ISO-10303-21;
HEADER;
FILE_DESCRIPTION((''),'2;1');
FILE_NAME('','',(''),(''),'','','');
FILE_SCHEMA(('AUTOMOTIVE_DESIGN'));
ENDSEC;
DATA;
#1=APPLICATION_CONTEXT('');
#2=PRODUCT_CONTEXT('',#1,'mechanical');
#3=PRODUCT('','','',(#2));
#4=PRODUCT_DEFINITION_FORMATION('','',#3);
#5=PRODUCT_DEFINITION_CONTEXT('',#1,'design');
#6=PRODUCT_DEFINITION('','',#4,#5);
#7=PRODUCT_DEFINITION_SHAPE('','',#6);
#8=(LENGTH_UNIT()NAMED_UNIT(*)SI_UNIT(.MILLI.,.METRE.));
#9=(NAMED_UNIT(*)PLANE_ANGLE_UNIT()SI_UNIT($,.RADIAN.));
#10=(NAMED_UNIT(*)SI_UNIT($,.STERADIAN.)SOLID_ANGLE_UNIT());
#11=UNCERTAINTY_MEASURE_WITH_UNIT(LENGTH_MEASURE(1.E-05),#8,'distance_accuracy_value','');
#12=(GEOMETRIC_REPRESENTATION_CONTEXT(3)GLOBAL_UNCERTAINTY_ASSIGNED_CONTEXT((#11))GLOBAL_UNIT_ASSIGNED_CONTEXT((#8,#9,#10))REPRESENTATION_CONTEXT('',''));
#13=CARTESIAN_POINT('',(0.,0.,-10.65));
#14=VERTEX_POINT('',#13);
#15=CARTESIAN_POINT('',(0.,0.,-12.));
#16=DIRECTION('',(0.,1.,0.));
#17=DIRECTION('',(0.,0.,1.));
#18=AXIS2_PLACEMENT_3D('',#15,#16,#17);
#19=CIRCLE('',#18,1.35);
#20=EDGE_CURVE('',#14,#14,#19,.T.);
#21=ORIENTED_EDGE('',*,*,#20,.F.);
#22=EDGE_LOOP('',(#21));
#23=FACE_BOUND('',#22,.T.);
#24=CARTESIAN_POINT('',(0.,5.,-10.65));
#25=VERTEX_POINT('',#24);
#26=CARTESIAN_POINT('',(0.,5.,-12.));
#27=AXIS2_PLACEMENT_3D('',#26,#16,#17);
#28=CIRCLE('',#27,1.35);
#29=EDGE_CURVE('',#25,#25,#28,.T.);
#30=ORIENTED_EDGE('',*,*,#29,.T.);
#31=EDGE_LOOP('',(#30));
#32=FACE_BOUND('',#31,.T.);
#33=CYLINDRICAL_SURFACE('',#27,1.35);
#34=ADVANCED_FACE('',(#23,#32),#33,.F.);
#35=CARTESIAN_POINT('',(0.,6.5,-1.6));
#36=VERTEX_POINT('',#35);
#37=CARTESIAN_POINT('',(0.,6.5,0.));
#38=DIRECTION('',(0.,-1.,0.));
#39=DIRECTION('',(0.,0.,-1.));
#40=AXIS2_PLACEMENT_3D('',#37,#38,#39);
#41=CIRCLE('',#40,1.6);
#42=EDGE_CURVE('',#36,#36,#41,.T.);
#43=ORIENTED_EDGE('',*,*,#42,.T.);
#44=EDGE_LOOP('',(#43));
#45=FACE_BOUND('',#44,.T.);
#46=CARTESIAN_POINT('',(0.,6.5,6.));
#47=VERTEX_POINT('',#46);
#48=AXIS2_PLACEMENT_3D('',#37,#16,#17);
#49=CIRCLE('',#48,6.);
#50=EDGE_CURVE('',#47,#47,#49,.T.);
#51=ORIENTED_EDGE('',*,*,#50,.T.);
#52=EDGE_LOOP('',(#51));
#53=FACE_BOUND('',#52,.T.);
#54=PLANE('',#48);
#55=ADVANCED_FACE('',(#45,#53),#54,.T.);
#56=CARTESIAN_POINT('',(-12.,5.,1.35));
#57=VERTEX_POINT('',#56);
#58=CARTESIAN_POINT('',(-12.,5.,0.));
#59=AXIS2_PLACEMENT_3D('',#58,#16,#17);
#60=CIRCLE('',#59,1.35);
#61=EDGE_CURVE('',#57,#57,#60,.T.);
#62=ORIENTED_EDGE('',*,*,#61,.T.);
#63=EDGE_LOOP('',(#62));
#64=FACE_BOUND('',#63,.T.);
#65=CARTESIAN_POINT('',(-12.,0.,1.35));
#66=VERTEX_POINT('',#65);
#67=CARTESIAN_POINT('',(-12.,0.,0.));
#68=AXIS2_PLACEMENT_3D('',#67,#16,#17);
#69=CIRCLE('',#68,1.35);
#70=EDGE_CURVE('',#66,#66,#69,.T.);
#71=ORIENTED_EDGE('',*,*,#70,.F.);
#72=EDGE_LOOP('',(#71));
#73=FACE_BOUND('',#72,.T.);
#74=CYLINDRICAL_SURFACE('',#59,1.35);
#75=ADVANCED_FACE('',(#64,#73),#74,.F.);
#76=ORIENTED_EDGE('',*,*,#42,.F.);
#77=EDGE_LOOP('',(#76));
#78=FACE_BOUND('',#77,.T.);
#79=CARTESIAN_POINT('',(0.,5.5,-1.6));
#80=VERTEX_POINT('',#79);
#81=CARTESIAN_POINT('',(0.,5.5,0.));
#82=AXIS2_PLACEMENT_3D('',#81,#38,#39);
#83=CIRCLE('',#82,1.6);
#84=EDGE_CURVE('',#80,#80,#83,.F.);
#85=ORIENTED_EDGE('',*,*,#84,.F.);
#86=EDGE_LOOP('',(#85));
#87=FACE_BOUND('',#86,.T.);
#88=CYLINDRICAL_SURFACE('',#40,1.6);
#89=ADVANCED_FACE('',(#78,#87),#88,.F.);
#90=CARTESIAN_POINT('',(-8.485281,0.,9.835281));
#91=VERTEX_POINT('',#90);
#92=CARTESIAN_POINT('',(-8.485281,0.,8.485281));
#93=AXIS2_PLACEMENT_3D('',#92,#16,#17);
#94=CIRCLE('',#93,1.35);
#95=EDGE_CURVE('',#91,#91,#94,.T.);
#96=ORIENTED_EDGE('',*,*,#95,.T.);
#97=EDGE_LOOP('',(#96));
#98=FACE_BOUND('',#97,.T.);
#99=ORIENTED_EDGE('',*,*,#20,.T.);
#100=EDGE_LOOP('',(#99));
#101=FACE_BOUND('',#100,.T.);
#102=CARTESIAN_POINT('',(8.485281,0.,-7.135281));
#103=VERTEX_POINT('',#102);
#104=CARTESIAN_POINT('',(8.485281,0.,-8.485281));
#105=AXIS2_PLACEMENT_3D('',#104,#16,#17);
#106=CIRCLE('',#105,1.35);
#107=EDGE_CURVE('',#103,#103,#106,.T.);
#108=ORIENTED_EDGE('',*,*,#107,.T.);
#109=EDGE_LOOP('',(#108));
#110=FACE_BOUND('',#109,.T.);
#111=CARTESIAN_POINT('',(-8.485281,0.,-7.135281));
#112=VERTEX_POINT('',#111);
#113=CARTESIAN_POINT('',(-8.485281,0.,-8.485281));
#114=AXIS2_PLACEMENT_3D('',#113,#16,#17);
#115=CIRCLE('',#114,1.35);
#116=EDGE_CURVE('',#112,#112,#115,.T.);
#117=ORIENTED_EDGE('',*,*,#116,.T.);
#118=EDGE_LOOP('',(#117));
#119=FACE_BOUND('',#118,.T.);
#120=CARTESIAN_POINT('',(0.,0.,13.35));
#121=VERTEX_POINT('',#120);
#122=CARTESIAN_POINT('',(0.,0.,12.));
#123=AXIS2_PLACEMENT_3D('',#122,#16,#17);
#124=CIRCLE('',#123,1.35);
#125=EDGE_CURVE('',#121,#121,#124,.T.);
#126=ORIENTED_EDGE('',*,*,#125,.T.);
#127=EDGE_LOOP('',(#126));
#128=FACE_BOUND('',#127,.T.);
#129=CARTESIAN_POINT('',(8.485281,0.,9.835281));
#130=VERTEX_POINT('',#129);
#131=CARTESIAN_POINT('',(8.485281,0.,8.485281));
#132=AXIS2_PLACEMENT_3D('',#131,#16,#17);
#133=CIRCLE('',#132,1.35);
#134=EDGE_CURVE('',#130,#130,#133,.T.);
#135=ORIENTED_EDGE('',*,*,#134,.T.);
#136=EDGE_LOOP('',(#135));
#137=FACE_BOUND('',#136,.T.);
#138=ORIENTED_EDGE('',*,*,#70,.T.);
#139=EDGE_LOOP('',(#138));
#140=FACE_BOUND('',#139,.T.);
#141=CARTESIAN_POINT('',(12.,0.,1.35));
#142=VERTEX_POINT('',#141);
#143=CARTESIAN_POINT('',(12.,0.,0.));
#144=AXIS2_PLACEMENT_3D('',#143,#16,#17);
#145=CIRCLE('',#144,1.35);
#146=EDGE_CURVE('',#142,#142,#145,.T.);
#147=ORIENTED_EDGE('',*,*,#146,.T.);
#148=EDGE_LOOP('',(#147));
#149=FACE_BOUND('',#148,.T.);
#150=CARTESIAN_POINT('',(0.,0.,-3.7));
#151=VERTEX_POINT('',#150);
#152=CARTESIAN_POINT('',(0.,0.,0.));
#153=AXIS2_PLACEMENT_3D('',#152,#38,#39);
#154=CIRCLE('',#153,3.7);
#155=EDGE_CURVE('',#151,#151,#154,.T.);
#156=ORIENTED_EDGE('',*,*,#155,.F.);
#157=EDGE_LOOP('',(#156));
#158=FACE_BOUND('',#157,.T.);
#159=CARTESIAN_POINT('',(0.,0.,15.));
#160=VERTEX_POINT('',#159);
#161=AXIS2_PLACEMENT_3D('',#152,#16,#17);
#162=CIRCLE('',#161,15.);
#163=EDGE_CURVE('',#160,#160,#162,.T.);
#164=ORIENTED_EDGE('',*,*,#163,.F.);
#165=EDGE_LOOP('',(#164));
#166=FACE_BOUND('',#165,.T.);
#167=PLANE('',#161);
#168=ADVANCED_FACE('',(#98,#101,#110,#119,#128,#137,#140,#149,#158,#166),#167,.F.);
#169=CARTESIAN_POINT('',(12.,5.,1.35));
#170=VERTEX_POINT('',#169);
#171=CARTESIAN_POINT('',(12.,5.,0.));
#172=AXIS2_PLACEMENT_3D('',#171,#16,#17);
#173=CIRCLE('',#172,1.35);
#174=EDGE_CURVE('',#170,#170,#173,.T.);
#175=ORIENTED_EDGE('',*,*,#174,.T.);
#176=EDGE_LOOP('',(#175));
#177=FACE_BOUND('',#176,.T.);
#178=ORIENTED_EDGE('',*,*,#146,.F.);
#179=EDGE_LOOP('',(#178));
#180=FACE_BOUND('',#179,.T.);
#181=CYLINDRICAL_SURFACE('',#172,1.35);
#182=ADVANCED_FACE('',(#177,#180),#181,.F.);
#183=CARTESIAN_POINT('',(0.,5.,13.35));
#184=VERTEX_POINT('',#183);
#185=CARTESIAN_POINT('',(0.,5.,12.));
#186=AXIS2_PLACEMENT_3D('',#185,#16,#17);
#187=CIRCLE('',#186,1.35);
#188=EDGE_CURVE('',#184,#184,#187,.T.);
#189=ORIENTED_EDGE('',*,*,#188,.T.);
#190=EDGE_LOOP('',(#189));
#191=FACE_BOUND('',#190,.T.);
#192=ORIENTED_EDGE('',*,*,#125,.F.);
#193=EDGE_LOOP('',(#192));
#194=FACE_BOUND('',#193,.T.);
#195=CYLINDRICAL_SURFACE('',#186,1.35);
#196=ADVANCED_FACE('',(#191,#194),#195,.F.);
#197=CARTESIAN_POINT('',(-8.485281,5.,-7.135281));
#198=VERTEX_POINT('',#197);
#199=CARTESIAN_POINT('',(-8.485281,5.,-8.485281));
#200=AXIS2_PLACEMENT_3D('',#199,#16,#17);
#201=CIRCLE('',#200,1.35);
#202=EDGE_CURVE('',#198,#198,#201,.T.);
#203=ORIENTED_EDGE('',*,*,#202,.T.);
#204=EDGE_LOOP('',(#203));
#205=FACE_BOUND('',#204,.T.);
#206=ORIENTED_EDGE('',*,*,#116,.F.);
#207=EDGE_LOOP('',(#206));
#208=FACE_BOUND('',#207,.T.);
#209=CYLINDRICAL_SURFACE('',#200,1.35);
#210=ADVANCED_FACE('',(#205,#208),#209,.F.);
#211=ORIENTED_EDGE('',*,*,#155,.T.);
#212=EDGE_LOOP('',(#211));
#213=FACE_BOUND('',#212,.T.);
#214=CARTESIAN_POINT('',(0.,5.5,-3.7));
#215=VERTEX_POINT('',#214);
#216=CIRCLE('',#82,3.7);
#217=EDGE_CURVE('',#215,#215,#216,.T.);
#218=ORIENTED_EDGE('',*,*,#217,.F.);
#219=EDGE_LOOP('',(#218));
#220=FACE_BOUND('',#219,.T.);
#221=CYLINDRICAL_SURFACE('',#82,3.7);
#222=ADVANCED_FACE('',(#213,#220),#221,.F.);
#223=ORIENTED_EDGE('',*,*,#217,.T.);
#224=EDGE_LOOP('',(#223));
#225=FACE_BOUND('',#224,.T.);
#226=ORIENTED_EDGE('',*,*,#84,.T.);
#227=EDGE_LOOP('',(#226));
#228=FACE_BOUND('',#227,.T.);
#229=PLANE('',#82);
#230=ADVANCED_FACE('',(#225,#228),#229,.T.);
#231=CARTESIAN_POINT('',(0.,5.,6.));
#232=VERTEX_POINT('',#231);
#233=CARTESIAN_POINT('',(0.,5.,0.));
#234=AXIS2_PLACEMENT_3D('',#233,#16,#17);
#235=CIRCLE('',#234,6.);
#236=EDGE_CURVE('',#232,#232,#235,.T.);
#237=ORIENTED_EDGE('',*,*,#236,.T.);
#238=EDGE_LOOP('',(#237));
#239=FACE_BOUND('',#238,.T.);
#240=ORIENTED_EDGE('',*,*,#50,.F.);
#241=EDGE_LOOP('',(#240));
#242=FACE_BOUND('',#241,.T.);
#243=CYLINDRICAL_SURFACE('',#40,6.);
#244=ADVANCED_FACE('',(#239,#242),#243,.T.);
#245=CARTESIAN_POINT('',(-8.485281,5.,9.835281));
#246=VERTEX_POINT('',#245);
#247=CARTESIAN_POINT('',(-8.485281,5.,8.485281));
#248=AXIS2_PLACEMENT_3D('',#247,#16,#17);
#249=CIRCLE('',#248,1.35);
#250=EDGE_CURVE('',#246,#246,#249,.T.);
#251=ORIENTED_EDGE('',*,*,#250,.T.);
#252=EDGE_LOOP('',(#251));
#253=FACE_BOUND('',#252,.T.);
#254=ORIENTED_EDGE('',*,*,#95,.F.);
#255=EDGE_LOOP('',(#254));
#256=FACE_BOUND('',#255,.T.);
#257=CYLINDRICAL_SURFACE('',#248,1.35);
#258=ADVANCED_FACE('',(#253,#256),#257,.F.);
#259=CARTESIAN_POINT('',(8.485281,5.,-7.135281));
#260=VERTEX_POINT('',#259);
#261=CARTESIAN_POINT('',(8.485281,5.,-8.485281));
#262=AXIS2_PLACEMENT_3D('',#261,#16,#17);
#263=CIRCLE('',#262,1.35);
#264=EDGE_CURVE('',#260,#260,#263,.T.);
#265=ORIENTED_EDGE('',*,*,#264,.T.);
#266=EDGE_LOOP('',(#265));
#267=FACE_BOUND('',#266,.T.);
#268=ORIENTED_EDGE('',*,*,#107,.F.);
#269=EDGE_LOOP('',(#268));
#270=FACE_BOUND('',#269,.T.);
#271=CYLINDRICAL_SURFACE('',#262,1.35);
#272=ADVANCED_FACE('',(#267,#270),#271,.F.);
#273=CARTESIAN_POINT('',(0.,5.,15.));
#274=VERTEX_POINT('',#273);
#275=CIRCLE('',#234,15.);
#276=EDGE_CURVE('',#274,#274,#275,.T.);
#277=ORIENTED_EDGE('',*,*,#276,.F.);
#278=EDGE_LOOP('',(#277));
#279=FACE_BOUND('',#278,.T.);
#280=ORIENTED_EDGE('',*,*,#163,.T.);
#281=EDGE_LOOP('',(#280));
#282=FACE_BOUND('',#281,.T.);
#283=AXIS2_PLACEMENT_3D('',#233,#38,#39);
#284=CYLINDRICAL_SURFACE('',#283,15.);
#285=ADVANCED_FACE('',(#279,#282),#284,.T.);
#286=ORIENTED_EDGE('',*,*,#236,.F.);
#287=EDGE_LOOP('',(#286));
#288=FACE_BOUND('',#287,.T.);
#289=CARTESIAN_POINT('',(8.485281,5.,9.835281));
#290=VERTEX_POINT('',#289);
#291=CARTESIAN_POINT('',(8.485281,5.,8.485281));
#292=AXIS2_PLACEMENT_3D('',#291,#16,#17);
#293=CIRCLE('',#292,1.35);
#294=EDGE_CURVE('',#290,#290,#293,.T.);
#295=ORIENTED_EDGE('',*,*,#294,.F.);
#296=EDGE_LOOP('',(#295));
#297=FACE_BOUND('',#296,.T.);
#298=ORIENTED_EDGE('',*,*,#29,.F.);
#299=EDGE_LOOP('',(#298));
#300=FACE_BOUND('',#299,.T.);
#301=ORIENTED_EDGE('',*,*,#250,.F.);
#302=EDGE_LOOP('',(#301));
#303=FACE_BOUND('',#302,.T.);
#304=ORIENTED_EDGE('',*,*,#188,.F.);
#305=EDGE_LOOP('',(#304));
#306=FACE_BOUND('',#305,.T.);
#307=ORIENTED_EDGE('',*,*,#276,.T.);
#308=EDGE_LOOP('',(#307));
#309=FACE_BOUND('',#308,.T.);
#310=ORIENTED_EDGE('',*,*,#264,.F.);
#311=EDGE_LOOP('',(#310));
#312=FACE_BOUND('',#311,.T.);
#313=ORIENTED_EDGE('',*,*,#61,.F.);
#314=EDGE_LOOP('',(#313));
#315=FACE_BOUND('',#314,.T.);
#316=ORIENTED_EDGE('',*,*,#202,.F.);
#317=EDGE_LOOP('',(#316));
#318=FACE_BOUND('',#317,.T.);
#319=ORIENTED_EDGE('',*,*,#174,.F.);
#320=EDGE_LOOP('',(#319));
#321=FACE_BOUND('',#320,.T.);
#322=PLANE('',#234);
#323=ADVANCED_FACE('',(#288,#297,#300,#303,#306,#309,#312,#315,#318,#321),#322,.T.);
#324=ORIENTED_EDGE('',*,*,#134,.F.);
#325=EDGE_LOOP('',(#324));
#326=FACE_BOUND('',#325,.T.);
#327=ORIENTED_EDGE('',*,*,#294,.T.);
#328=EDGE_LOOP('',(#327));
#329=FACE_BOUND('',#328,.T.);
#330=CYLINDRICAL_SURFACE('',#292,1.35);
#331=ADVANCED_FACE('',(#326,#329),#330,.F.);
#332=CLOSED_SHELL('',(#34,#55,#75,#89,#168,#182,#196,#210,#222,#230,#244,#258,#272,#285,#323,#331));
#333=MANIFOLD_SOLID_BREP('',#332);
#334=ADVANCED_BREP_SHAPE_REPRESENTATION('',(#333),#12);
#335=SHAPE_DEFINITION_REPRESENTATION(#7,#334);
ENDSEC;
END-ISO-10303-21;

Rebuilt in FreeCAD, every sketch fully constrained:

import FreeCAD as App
import Part
import Sketcher
Q = App.Units.Quantity

doc = App.newDocument("Part")
body = doc.addObject("PartDesign::Body", "Body")

sketch1 = body.newObject("Sketcher::SketchObject", "Sketch")
sketch1.AttachmentSupport = (doc.getObject("XZ_Plane"), [""])
sketch1.MapMode = "FlatFace"
sketch1.addGeometry(Part.Circle(App.Vector(0, 0, 0), App.Vector(0, 0, 1), 15), False)
sketch1.addConstraint(Sketcher.Constraint("Coincident", 0, 3, -1, 1))
sketch1.addConstraint(Sketcher.Constraint("Diameter", 0, Q("30 mm")))
pad1 = body.newObject("PartDesign::Pad", "Pad")
pad1.Profile = sketch1
pad1.Length = 5
pad1.Reversed = True

sketch2 = body.newObject("Sketcher::SketchObject", "Sketch001")
sketch2.AttachmentSupport = (doc.getObject("XZ_Plane"), [""])
sketch2.MapMode = "FlatFace"
sketch2.AttachmentOffset = App.Placement(App.Vector(0, 0, -5), App.Rotation())
sketch2.addGeometry(Part.Circle(App.Vector(0, 0, 0), App.Vector(0, 0, 1), 6), False)
sketch2.addConstraint(Sketcher.Constraint("Coincident", 0, 3, -1, 1))
sketch2.addConstraint(Sketcher.Constraint("Diameter", 0, Q("12 mm")))
pad2 = body.newObject("PartDesign::Pad", "Pad001")
pad2.Profile = sketch2
pad2.Length = 1.5
pad2.Reversed = True

sketch3 = body.newObject("Sketcher::SketchObject", "Sketch002")
sketch3.AttachmentSupport = (doc.getObject("XZ_Plane"), [""])
sketch3.MapMode = "FlatFace"
sketch3.addGeometry(Part.Circle(App.Vector(0, 0, 0), App.Vector(0, 0, 1), 1.6), False)
sketch3.addConstraint(Sketcher.Constraint("Coincident", 0, 3, -1, 1))
sketch3.addConstraint(Sketcher.Constraint("Diameter", 0, Q("3.2 mm")))
pocket1 = body.newObject("PartDesign::Pocket", "Pocket")
pocket1.Profile = sketch3
pocket1.Type = "ThroughAll"

sketch4 = body.newObject("Sketcher::SketchObject", "Sketch003")
sketch4.AttachmentSupport = (doc.getObject("XZ_Plane"), [""])
sketch4.MapMode = "FlatFace"
sketch4.addGeometry(Part.Circle(App.Vector(0, 0, 0), App.Vector(0, 0, 1), 3.7), False)
sketch4.addConstraint(Sketcher.Constraint("Coincident", 0, 3, -1, 1))
sketch4.addConstraint(Sketcher.Constraint("Diameter", 0, Q("7.4 mm")))
pocket2 = body.newObject("PartDesign::Pocket", "Pocket001")
pocket2.Profile = sketch4
pocket2.Length = 5.5

sketch5 = body.newObject("Sketcher::SketchObject", "Sketch004")
sketch5.AttachmentSupport = (doc.getObject("XZ_Plane"), [""])
sketch5.MapMode = "FlatFace"
sketch5.AttachmentOffset = App.Placement(App.Vector(0, 0, -5), App.Rotation())
sketch5.addGeometry(Part.Circle(App.Vector(0, 0, 0), App.Vector(0, 0, 1), 1.35), False)
sketch5.addGeometry(Part.Circle(App.Vector(-12, 0, 0), App.Vector(0, 0, 1), 1.35), False)
sketch5.addGeometry(Part.Circle(App.Vector(-8.485281, -8.485281, 0), App.Vector(0, 0, 1), 1.35), False)
sketch5.addGeometry(Part.Circle(App.Vector(0, -12, 0), App.Vector(0, 0, 1), 1.35), False)
sketch5.addGeometry(Part.Circle(App.Vector(8.485281, -8.485281, 0), App.Vector(0, 0, 1), 1.35), False)
sketch5.addGeometry(Part.Circle(App.Vector(12, 0, 0), App.Vector(0, 0, 1), 1.35), False)
sketch5.addGeometry(Part.Circle(App.Vector(8.485281, 8.485281, 0), App.Vector(0, 0, 1), 1.35), False)
sketch5.addGeometry(Part.Circle(App.Vector(0, 12, 0), App.Vector(0, 0, 1), 1.35), False)
sketch5.addGeometry(Part.Circle(App.Vector(-8.485281, 8.485281, 0), App.Vector(0, 0, 1), 1.35), False)
sketch5.addConstraint(Sketcher.Constraint("Coincident", 0, 3, -1, 1))
sketch5.addConstraint(Sketcher.Constraint("Equal", 0, 1))
sketch5.addConstraint(Sketcher.Constraint("Equal", 1, 2))
sketch5.addConstraint(Sketcher.Constraint("Equal", 2, 3))
sketch5.addConstraint(Sketcher.Constraint("Equal", 3, 4))
sketch5.addConstraint(Sketcher.Constraint("Equal", 4, 5))
sketch5.addConstraint(Sketcher.Constraint("Equal", 5, 6))
sketch5.addConstraint(Sketcher.Constraint("Equal", 6, 7))
sketch5.addConstraint(Sketcher.Constraint("Equal", 7, 8))
sketch5.addConstraint(Sketcher.Constraint("Symmetric", 1, 3, 5, 3, -1, 1))
sketch5.addConstraint(Sketcher.Constraint("Symmetric", 2, 3, 6, 3, -1, 1))
sketch5.addConstraint(Sketcher.Constraint("Symmetric", 3, 3, 7, 3, -1, 1))
sketch5.addConstraint(Sketcher.Constraint("Symmetric", 4, 3, 8, 3, -1, 1))
sketch5.addConstraint(Sketcher.Constraint("Symmetric", 2, 3, 4, 3, -2))
sketch5.addConstraint(Sketcher.Constraint("PointOnObject", 1, 3, -1))
sketch5.addConstraint(Sketcher.Constraint("PointOnObject", 3, 3, -2))
sketch5.addConstraint(Sketcher.Constraint("Diameter", 0, Q("2.7 mm")))
sketch5.addConstraint(Sketcher.Constraint("DistanceX", 1, 3, -1, 1, Q("12 mm")))
sketch5.addConstraint(Sketcher.Constraint("DistanceY", 3, 3, -1, 1, Q("12 mm")))
sketch5.addConstraint(Sketcher.Constraint("DistanceX", 2, 3, -1, 1, Q("8.485281 mm")))
sketch5.addConstraint(Sketcher.Constraint("DistanceY", 2, 3, -1, 1, Q("8.485281 mm")))
doc.recompute()
hole = body.newObject("PartDesign::Hole", "Hole")
hole.Profile = sketch5
hole.ThreadType = "None"
hole.Diameter = 2.7
hole.DepthType = "ThroughAll"
hole.Reversed = True

doc.recompute()
